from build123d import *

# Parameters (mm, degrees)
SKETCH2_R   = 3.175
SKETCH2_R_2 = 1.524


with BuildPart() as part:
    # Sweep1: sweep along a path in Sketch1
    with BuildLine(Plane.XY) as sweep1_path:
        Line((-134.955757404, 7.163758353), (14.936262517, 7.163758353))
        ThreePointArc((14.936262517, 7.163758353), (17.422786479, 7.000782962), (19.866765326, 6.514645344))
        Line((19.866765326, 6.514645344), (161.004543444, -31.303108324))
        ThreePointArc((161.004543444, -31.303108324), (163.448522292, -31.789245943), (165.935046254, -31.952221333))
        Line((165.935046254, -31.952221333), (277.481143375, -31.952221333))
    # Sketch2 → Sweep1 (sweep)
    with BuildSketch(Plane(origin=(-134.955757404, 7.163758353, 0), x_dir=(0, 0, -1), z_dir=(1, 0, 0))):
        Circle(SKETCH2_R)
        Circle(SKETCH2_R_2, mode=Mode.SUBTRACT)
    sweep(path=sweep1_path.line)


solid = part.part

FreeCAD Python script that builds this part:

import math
import FreeCAD as App
import Part
import Sketcher
from FreeCAD import Vector
Q = App.Units.Quantity

doc = App.newDocument("Part")
body = doc.addObject("PartDesign::Body", "Body")

# Sketch on YZ plane
sketch1 = doc.addObject("Sketcher::SketchObject", "Sketch")
body.addObject(sketch1)
sketch1.AttachmentSupport = (doc.YZ_Plane, [""])
sketch1.MapMode = "FlatFace"
sketch1.AttachmentOffset = App.Placement(Vector(0, 0, -134.955757), App.Rotation())
sketch1.addGeometry([
    Part.Circle(Vector(7.2, 0, 0), Vector(0, 0, 1), 3.2),
    Part.Circle(Vector(7.2, 0, 0), Vector(0, 0, 1), 1.5),
], False)
sketch1.addConstraint([
    Sketcher.Constraint("Coincident", 1, 3, 0, 3),
    Sketcher.Constraint("PointOnObject", 0, 3, -1),
    Sketcher.Constraint("Diameter", 0, Q("0.25 in")),
    Sketcher.Constraint("Diameter", 1, Q("0.12 in")),
    Sketcher.Constraint("DistanceX", -1, 1, 0, 3, 7.163758),
])

# Sketch on XY plane
sketch2 = doc.addObject("Sketcher::SketchObject", "Sketch001")
body.addObject(sketch2)
sketch2.AttachmentSupport = (doc.XY_Plane, [""])
sketch2.MapMode = "FlatFace"
sketch2.addGeometry([
    Part.LineSegment(Vector(-135, 7.2, 0), Vector(14.9, 7.2, 0)),  # 0
    Part.ArcOfCircle(Part.Circle(Vector(14.9, -11.9, 0), Vector(0, 0, 1), 19.1), math.radians(75), math.radians(90)),  # 1
    Part.LineSegment(Vector(19.9, 6.5, 0), Vector(161, -31.3, 0)),  # 2
    Part.ArcOfCircle(Part.Circle(Vector(165.9, -12.9, 0), Vector(0, 0, 1), 19), math.radians(-105), math.radians(-90)),  # 3
    Part.LineSegment(Vector(165.9, -32, 0), Vector(277.5, -32, 0)),  # 4
], False)
sketch2.addConstraint([
    Sketcher.Constraint("Tangent", 0, 2, 1, 2),
    Sketcher.Constraint("Tangent", 1, 1, 2, 1),
    Sketcher.Constraint("Tangent", 2, 2, 3, 1),
    Sketcher.Constraint("Tangent", 3, 2, 4, 1),
    Sketcher.Constraint("Horizontal", 0),
    Sketcher.Constraint("Horizontal", 4),
    Sketcher.Constraint("Equal", 1, 3),
    Sketcher.Constraint("Radius", 1, Q("0.75 in")),
    Sketcher.Constraint("Angle", 2, Q("-15 deg")),
    Sketcher.Constraint("DistanceX", 0, 1, 0, 2, 149.89202),
    Sketcher.Constraint("DistanceX", 0, 1, 2, 2, 295.960301),
    Sketcher.Constraint("DistanceX", 2, 2, 4, 2, 116.4766),
    Sketcher.Constraint("DistanceY", 1, 3, -1, 1, 11.886242),
    Sketcher.Constraint("DistanceX", -1, 1, 1, 3, 14.936263),
])
doc.recompute()

additivepipe = doc.addObject("PartDesign::AdditivePipe", "AdditivePipe")
body.addObject(additivepipe)
additivepipe.Profile = sketch1
additivepipe.Spine = (sketch2, ["Edge1", "Edge2", "Edge3", "Edge4", "Edge5"])

doc.recompute()
